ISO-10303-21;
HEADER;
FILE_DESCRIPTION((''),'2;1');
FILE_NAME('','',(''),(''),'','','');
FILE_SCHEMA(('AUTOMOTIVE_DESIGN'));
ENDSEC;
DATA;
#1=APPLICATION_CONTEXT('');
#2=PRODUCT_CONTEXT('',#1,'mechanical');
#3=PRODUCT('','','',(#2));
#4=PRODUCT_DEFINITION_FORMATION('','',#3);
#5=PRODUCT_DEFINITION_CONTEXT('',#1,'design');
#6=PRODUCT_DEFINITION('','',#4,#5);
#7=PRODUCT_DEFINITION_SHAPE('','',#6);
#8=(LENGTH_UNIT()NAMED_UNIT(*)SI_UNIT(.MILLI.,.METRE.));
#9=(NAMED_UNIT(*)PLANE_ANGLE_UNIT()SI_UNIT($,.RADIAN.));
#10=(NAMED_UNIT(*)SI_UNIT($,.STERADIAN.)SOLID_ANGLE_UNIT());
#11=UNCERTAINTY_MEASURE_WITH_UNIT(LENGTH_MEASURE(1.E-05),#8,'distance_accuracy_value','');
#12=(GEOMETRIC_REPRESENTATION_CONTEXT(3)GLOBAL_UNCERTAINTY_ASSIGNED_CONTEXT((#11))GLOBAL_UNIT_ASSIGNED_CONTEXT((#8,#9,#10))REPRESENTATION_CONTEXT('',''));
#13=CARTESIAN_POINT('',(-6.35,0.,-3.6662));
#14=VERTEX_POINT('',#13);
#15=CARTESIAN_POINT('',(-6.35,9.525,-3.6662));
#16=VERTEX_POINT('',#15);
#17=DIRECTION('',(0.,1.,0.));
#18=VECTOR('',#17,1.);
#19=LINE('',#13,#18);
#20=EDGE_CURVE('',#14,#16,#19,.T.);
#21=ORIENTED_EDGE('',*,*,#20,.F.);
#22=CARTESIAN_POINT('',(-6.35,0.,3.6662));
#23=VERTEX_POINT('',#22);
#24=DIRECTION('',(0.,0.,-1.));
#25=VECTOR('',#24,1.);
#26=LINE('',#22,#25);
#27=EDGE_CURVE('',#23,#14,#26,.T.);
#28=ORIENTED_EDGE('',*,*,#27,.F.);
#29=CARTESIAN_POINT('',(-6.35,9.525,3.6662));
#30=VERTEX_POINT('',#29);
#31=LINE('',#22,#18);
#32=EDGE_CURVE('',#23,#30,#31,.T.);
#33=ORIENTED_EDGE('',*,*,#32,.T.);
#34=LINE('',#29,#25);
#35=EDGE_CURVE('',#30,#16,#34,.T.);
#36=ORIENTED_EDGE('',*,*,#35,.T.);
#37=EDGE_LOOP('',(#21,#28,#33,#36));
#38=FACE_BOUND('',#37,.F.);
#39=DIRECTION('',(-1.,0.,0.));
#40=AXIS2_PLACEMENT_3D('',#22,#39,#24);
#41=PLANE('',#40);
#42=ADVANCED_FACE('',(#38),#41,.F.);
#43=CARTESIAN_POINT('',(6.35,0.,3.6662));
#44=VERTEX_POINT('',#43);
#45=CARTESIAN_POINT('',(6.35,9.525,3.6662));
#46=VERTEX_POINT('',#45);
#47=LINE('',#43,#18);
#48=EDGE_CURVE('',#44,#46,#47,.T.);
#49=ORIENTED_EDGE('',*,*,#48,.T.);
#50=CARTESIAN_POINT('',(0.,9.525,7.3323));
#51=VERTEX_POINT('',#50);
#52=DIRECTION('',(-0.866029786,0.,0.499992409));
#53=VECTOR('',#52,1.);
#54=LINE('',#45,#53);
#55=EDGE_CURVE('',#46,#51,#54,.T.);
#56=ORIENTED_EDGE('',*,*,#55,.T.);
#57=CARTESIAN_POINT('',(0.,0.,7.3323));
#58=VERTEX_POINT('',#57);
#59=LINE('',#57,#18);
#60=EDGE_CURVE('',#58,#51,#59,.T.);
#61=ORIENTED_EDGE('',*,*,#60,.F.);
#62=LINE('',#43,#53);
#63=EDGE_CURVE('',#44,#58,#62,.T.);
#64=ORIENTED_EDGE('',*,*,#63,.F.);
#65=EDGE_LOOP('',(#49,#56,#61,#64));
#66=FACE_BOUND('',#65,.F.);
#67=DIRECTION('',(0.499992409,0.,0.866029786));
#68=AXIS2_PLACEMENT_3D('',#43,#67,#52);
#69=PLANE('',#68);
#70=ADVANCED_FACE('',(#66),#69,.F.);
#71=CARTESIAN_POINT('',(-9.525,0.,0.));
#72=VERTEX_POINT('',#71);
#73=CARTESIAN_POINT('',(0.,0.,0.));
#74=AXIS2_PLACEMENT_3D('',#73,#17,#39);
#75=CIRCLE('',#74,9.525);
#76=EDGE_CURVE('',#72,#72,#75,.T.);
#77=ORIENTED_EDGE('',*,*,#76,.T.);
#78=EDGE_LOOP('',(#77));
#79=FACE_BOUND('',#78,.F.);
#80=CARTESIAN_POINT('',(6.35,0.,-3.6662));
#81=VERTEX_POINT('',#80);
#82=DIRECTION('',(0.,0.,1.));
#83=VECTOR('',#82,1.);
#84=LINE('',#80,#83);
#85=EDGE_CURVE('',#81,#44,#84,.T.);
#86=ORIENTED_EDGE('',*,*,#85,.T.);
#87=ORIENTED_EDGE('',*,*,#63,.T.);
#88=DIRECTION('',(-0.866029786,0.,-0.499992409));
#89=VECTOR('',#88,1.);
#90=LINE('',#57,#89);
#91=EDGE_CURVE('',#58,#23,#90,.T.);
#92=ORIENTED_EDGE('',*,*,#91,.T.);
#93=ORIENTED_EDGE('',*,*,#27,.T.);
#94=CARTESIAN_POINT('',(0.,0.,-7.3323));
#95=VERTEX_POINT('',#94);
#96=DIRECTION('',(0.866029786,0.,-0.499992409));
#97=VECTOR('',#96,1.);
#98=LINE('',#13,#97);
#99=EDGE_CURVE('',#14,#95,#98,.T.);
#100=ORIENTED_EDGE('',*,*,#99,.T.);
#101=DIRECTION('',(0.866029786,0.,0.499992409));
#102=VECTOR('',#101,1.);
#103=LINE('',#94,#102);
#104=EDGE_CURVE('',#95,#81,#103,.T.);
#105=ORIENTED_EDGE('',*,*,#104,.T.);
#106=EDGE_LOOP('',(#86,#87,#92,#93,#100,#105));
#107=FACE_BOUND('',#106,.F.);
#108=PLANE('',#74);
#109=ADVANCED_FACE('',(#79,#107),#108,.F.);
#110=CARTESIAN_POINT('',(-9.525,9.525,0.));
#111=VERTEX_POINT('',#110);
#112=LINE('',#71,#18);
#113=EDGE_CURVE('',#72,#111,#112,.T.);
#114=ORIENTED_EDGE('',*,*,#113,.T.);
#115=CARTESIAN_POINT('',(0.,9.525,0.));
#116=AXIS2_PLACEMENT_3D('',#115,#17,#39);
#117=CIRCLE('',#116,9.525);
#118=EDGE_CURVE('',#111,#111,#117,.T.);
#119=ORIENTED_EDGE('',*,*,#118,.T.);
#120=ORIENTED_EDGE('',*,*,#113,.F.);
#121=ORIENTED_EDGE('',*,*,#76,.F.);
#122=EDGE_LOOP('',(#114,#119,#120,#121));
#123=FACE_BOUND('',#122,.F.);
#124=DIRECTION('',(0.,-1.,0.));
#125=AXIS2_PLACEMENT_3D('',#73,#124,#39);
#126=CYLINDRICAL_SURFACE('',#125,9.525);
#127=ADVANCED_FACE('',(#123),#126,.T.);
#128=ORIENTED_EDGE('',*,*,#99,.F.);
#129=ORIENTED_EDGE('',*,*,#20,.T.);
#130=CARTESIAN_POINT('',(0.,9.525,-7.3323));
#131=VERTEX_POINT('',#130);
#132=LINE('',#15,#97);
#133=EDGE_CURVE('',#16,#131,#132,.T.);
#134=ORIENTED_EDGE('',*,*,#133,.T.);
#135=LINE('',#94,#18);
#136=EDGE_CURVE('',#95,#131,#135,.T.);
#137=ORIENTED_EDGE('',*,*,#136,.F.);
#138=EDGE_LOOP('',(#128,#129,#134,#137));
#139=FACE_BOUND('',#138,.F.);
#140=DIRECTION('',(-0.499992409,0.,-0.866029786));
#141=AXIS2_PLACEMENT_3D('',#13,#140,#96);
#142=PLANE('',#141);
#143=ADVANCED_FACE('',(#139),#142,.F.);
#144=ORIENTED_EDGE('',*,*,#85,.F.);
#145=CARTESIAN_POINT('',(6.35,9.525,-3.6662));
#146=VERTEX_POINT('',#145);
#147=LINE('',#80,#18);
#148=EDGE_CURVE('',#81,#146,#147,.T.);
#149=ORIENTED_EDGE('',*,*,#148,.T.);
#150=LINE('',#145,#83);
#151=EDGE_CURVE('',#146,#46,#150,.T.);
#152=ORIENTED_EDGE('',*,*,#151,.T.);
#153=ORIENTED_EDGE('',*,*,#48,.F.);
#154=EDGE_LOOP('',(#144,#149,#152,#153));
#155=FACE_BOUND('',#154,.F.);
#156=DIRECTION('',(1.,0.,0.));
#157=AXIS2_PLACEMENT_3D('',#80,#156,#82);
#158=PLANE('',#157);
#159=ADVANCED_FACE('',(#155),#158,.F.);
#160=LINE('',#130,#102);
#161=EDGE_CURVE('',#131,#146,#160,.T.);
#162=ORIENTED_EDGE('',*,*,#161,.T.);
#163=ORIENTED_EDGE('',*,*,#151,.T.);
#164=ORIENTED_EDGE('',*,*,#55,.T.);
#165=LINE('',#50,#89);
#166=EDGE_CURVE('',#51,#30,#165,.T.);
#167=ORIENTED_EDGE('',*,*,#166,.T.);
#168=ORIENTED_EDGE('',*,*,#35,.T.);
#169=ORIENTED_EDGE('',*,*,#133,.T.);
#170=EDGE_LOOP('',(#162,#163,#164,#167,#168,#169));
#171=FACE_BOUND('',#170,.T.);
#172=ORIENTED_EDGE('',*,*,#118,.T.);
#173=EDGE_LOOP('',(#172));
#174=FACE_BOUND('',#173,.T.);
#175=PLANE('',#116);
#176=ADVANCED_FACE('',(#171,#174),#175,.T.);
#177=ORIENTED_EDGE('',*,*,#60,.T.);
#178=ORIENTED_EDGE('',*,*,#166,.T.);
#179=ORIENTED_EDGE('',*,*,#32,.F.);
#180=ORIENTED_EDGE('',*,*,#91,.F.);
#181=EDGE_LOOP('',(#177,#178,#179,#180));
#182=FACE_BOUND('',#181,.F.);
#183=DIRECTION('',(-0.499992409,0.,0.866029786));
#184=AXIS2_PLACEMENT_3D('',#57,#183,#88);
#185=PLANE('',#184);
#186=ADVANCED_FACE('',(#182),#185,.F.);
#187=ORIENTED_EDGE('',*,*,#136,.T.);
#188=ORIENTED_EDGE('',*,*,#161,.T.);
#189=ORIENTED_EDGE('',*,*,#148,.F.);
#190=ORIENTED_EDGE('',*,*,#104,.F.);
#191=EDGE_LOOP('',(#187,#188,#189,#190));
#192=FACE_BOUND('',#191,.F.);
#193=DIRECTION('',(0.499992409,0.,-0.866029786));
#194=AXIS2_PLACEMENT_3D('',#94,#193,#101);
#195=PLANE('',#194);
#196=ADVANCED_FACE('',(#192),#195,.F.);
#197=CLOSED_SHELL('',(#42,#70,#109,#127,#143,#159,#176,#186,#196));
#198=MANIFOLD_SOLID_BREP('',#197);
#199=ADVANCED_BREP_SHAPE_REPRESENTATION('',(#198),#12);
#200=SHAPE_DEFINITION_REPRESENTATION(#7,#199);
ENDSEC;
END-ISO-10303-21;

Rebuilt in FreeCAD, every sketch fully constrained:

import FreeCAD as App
import Part
import Sketcher

V = App.Vector
Q = App.Units.Quantity

doc = App.newDocument("Part")
params = doc.addObject("Spreadsheet::Sheet", "Params")
for row, (alias, value) in enumerate([
    ("sketch1_diameter", "0.75 in"),
    ("pad1_length", "0.375 in"),
], start=1):
    params.set(f"A{row}", alias)
    params.set(f"B{row}", "=" + value)
    params.setAlias(f"B{row}", alias)

body = doc.addObject("PartDesign::Body", "Body")

sketch1 = doc.addObject("Sketcher::SketchObject", "Sketch")
body.addObject(sketch1)
sketch1.AttachmentSupport = (doc.XZ_Plane, [""])
sketch1.MapMode = "FlatFace"
sketch1.addGeometry(Part.Circle(V(0, 0, 0), V(0, 0, 1), 10), False)
sketch1.addGeometry(Part.LineSegment(V(-6, 4, 0), V(-6, -4, 0)), False)
sketch1.addGeometry(Part.LineSegment(V(-6, -4, 0), V(0, -7, 0)), False)
sketch1.addGeometry(Part.LineSegment(V(0, -7, 0), V(6, -4, 0)), False)
sketch1.addGeometry(Part.LineSegment(V(6, -4, 0), V(6, 4, 0)), False)
sketch1.addGeometry(Part.LineSegment(V(6, 4, 0), V(0, 7, 0)), False)
sketch1.addGeometry(Part.LineSegment(V(0, 7, 0), V(-6, 4, 0)), False)
sketch1.addConstraint(Sketcher.Constraint("Coincident", 1, 2, 2, 1))
sketch1.addConstraint(Sketcher.Constraint("Coincident", 2, 2, 3, 1))
sketch1.addConstraint(Sketcher.Constraint("Coincident", 3, 2, 4, 1))
sketch1.addConstraint(Sketcher.Constraint("Coincident", 4, 2, 5, 1))
sketch1.addConstraint(Sketcher.Constraint("Coincident", 5, 2, 6, 1))
sketch1.addConstraint(Sketcher.Constraint("Coincident", 6, 2, 1, 1))
sketch1.addConstraint(Sketcher.Constraint("Vertical", 1))
sketch1.addConstraint(Sketcher.Constraint("Vertical", 4))
sketch1.addConstraint(Sketcher.Constraint("Coincident", 0, 3, -1, 1))
sketch1.addConstraint(Sketcher.Constraint("Symmetric", 1, 2, 4, 2, -1, 1))
sketch1.addConstraint(Sketcher.Constraint("Symmetric", 2, 2, 5, 2, -1, 1))
sketch1.addConstraint(Sketcher.Constraint("PointOnObject", 2, 2, -2))
sketch1.addConstraint(Sketcher.Constraint("Parallel", 3, 6))
sketch1.addConstraint(Sketcher.Constraint("Horizontal", 1, 2, 3, 2))
sketch1.addConstraint(Sketcher.Constraint("Diameter", 0, Q("0.75 in")))
sketch1.addConstraint(Sketcher.Constraint("DistanceX", 1, 2, 3, 2, Q("0.5 in")))
sketch1.addConstraint(Sketcher.Constraint("Angle", 2, Q("-29.9995 deg")))
sketch1.addConstraint(Sketcher.Constraint("DistanceY", 2, 2, 4, 2, Q("0.433 in")))
sketch1.setExpression("Constraints[14]", "Params.sketch1_diameter")
pad1 = doc.addObject("PartDesign::Pad", "Pad")
body.addObject(pad1)
pad1.Profile = sketch1
pad1.setExpression("Length", "Params.pad1_length")
pad1.Reversed = True

doc.recompute()
